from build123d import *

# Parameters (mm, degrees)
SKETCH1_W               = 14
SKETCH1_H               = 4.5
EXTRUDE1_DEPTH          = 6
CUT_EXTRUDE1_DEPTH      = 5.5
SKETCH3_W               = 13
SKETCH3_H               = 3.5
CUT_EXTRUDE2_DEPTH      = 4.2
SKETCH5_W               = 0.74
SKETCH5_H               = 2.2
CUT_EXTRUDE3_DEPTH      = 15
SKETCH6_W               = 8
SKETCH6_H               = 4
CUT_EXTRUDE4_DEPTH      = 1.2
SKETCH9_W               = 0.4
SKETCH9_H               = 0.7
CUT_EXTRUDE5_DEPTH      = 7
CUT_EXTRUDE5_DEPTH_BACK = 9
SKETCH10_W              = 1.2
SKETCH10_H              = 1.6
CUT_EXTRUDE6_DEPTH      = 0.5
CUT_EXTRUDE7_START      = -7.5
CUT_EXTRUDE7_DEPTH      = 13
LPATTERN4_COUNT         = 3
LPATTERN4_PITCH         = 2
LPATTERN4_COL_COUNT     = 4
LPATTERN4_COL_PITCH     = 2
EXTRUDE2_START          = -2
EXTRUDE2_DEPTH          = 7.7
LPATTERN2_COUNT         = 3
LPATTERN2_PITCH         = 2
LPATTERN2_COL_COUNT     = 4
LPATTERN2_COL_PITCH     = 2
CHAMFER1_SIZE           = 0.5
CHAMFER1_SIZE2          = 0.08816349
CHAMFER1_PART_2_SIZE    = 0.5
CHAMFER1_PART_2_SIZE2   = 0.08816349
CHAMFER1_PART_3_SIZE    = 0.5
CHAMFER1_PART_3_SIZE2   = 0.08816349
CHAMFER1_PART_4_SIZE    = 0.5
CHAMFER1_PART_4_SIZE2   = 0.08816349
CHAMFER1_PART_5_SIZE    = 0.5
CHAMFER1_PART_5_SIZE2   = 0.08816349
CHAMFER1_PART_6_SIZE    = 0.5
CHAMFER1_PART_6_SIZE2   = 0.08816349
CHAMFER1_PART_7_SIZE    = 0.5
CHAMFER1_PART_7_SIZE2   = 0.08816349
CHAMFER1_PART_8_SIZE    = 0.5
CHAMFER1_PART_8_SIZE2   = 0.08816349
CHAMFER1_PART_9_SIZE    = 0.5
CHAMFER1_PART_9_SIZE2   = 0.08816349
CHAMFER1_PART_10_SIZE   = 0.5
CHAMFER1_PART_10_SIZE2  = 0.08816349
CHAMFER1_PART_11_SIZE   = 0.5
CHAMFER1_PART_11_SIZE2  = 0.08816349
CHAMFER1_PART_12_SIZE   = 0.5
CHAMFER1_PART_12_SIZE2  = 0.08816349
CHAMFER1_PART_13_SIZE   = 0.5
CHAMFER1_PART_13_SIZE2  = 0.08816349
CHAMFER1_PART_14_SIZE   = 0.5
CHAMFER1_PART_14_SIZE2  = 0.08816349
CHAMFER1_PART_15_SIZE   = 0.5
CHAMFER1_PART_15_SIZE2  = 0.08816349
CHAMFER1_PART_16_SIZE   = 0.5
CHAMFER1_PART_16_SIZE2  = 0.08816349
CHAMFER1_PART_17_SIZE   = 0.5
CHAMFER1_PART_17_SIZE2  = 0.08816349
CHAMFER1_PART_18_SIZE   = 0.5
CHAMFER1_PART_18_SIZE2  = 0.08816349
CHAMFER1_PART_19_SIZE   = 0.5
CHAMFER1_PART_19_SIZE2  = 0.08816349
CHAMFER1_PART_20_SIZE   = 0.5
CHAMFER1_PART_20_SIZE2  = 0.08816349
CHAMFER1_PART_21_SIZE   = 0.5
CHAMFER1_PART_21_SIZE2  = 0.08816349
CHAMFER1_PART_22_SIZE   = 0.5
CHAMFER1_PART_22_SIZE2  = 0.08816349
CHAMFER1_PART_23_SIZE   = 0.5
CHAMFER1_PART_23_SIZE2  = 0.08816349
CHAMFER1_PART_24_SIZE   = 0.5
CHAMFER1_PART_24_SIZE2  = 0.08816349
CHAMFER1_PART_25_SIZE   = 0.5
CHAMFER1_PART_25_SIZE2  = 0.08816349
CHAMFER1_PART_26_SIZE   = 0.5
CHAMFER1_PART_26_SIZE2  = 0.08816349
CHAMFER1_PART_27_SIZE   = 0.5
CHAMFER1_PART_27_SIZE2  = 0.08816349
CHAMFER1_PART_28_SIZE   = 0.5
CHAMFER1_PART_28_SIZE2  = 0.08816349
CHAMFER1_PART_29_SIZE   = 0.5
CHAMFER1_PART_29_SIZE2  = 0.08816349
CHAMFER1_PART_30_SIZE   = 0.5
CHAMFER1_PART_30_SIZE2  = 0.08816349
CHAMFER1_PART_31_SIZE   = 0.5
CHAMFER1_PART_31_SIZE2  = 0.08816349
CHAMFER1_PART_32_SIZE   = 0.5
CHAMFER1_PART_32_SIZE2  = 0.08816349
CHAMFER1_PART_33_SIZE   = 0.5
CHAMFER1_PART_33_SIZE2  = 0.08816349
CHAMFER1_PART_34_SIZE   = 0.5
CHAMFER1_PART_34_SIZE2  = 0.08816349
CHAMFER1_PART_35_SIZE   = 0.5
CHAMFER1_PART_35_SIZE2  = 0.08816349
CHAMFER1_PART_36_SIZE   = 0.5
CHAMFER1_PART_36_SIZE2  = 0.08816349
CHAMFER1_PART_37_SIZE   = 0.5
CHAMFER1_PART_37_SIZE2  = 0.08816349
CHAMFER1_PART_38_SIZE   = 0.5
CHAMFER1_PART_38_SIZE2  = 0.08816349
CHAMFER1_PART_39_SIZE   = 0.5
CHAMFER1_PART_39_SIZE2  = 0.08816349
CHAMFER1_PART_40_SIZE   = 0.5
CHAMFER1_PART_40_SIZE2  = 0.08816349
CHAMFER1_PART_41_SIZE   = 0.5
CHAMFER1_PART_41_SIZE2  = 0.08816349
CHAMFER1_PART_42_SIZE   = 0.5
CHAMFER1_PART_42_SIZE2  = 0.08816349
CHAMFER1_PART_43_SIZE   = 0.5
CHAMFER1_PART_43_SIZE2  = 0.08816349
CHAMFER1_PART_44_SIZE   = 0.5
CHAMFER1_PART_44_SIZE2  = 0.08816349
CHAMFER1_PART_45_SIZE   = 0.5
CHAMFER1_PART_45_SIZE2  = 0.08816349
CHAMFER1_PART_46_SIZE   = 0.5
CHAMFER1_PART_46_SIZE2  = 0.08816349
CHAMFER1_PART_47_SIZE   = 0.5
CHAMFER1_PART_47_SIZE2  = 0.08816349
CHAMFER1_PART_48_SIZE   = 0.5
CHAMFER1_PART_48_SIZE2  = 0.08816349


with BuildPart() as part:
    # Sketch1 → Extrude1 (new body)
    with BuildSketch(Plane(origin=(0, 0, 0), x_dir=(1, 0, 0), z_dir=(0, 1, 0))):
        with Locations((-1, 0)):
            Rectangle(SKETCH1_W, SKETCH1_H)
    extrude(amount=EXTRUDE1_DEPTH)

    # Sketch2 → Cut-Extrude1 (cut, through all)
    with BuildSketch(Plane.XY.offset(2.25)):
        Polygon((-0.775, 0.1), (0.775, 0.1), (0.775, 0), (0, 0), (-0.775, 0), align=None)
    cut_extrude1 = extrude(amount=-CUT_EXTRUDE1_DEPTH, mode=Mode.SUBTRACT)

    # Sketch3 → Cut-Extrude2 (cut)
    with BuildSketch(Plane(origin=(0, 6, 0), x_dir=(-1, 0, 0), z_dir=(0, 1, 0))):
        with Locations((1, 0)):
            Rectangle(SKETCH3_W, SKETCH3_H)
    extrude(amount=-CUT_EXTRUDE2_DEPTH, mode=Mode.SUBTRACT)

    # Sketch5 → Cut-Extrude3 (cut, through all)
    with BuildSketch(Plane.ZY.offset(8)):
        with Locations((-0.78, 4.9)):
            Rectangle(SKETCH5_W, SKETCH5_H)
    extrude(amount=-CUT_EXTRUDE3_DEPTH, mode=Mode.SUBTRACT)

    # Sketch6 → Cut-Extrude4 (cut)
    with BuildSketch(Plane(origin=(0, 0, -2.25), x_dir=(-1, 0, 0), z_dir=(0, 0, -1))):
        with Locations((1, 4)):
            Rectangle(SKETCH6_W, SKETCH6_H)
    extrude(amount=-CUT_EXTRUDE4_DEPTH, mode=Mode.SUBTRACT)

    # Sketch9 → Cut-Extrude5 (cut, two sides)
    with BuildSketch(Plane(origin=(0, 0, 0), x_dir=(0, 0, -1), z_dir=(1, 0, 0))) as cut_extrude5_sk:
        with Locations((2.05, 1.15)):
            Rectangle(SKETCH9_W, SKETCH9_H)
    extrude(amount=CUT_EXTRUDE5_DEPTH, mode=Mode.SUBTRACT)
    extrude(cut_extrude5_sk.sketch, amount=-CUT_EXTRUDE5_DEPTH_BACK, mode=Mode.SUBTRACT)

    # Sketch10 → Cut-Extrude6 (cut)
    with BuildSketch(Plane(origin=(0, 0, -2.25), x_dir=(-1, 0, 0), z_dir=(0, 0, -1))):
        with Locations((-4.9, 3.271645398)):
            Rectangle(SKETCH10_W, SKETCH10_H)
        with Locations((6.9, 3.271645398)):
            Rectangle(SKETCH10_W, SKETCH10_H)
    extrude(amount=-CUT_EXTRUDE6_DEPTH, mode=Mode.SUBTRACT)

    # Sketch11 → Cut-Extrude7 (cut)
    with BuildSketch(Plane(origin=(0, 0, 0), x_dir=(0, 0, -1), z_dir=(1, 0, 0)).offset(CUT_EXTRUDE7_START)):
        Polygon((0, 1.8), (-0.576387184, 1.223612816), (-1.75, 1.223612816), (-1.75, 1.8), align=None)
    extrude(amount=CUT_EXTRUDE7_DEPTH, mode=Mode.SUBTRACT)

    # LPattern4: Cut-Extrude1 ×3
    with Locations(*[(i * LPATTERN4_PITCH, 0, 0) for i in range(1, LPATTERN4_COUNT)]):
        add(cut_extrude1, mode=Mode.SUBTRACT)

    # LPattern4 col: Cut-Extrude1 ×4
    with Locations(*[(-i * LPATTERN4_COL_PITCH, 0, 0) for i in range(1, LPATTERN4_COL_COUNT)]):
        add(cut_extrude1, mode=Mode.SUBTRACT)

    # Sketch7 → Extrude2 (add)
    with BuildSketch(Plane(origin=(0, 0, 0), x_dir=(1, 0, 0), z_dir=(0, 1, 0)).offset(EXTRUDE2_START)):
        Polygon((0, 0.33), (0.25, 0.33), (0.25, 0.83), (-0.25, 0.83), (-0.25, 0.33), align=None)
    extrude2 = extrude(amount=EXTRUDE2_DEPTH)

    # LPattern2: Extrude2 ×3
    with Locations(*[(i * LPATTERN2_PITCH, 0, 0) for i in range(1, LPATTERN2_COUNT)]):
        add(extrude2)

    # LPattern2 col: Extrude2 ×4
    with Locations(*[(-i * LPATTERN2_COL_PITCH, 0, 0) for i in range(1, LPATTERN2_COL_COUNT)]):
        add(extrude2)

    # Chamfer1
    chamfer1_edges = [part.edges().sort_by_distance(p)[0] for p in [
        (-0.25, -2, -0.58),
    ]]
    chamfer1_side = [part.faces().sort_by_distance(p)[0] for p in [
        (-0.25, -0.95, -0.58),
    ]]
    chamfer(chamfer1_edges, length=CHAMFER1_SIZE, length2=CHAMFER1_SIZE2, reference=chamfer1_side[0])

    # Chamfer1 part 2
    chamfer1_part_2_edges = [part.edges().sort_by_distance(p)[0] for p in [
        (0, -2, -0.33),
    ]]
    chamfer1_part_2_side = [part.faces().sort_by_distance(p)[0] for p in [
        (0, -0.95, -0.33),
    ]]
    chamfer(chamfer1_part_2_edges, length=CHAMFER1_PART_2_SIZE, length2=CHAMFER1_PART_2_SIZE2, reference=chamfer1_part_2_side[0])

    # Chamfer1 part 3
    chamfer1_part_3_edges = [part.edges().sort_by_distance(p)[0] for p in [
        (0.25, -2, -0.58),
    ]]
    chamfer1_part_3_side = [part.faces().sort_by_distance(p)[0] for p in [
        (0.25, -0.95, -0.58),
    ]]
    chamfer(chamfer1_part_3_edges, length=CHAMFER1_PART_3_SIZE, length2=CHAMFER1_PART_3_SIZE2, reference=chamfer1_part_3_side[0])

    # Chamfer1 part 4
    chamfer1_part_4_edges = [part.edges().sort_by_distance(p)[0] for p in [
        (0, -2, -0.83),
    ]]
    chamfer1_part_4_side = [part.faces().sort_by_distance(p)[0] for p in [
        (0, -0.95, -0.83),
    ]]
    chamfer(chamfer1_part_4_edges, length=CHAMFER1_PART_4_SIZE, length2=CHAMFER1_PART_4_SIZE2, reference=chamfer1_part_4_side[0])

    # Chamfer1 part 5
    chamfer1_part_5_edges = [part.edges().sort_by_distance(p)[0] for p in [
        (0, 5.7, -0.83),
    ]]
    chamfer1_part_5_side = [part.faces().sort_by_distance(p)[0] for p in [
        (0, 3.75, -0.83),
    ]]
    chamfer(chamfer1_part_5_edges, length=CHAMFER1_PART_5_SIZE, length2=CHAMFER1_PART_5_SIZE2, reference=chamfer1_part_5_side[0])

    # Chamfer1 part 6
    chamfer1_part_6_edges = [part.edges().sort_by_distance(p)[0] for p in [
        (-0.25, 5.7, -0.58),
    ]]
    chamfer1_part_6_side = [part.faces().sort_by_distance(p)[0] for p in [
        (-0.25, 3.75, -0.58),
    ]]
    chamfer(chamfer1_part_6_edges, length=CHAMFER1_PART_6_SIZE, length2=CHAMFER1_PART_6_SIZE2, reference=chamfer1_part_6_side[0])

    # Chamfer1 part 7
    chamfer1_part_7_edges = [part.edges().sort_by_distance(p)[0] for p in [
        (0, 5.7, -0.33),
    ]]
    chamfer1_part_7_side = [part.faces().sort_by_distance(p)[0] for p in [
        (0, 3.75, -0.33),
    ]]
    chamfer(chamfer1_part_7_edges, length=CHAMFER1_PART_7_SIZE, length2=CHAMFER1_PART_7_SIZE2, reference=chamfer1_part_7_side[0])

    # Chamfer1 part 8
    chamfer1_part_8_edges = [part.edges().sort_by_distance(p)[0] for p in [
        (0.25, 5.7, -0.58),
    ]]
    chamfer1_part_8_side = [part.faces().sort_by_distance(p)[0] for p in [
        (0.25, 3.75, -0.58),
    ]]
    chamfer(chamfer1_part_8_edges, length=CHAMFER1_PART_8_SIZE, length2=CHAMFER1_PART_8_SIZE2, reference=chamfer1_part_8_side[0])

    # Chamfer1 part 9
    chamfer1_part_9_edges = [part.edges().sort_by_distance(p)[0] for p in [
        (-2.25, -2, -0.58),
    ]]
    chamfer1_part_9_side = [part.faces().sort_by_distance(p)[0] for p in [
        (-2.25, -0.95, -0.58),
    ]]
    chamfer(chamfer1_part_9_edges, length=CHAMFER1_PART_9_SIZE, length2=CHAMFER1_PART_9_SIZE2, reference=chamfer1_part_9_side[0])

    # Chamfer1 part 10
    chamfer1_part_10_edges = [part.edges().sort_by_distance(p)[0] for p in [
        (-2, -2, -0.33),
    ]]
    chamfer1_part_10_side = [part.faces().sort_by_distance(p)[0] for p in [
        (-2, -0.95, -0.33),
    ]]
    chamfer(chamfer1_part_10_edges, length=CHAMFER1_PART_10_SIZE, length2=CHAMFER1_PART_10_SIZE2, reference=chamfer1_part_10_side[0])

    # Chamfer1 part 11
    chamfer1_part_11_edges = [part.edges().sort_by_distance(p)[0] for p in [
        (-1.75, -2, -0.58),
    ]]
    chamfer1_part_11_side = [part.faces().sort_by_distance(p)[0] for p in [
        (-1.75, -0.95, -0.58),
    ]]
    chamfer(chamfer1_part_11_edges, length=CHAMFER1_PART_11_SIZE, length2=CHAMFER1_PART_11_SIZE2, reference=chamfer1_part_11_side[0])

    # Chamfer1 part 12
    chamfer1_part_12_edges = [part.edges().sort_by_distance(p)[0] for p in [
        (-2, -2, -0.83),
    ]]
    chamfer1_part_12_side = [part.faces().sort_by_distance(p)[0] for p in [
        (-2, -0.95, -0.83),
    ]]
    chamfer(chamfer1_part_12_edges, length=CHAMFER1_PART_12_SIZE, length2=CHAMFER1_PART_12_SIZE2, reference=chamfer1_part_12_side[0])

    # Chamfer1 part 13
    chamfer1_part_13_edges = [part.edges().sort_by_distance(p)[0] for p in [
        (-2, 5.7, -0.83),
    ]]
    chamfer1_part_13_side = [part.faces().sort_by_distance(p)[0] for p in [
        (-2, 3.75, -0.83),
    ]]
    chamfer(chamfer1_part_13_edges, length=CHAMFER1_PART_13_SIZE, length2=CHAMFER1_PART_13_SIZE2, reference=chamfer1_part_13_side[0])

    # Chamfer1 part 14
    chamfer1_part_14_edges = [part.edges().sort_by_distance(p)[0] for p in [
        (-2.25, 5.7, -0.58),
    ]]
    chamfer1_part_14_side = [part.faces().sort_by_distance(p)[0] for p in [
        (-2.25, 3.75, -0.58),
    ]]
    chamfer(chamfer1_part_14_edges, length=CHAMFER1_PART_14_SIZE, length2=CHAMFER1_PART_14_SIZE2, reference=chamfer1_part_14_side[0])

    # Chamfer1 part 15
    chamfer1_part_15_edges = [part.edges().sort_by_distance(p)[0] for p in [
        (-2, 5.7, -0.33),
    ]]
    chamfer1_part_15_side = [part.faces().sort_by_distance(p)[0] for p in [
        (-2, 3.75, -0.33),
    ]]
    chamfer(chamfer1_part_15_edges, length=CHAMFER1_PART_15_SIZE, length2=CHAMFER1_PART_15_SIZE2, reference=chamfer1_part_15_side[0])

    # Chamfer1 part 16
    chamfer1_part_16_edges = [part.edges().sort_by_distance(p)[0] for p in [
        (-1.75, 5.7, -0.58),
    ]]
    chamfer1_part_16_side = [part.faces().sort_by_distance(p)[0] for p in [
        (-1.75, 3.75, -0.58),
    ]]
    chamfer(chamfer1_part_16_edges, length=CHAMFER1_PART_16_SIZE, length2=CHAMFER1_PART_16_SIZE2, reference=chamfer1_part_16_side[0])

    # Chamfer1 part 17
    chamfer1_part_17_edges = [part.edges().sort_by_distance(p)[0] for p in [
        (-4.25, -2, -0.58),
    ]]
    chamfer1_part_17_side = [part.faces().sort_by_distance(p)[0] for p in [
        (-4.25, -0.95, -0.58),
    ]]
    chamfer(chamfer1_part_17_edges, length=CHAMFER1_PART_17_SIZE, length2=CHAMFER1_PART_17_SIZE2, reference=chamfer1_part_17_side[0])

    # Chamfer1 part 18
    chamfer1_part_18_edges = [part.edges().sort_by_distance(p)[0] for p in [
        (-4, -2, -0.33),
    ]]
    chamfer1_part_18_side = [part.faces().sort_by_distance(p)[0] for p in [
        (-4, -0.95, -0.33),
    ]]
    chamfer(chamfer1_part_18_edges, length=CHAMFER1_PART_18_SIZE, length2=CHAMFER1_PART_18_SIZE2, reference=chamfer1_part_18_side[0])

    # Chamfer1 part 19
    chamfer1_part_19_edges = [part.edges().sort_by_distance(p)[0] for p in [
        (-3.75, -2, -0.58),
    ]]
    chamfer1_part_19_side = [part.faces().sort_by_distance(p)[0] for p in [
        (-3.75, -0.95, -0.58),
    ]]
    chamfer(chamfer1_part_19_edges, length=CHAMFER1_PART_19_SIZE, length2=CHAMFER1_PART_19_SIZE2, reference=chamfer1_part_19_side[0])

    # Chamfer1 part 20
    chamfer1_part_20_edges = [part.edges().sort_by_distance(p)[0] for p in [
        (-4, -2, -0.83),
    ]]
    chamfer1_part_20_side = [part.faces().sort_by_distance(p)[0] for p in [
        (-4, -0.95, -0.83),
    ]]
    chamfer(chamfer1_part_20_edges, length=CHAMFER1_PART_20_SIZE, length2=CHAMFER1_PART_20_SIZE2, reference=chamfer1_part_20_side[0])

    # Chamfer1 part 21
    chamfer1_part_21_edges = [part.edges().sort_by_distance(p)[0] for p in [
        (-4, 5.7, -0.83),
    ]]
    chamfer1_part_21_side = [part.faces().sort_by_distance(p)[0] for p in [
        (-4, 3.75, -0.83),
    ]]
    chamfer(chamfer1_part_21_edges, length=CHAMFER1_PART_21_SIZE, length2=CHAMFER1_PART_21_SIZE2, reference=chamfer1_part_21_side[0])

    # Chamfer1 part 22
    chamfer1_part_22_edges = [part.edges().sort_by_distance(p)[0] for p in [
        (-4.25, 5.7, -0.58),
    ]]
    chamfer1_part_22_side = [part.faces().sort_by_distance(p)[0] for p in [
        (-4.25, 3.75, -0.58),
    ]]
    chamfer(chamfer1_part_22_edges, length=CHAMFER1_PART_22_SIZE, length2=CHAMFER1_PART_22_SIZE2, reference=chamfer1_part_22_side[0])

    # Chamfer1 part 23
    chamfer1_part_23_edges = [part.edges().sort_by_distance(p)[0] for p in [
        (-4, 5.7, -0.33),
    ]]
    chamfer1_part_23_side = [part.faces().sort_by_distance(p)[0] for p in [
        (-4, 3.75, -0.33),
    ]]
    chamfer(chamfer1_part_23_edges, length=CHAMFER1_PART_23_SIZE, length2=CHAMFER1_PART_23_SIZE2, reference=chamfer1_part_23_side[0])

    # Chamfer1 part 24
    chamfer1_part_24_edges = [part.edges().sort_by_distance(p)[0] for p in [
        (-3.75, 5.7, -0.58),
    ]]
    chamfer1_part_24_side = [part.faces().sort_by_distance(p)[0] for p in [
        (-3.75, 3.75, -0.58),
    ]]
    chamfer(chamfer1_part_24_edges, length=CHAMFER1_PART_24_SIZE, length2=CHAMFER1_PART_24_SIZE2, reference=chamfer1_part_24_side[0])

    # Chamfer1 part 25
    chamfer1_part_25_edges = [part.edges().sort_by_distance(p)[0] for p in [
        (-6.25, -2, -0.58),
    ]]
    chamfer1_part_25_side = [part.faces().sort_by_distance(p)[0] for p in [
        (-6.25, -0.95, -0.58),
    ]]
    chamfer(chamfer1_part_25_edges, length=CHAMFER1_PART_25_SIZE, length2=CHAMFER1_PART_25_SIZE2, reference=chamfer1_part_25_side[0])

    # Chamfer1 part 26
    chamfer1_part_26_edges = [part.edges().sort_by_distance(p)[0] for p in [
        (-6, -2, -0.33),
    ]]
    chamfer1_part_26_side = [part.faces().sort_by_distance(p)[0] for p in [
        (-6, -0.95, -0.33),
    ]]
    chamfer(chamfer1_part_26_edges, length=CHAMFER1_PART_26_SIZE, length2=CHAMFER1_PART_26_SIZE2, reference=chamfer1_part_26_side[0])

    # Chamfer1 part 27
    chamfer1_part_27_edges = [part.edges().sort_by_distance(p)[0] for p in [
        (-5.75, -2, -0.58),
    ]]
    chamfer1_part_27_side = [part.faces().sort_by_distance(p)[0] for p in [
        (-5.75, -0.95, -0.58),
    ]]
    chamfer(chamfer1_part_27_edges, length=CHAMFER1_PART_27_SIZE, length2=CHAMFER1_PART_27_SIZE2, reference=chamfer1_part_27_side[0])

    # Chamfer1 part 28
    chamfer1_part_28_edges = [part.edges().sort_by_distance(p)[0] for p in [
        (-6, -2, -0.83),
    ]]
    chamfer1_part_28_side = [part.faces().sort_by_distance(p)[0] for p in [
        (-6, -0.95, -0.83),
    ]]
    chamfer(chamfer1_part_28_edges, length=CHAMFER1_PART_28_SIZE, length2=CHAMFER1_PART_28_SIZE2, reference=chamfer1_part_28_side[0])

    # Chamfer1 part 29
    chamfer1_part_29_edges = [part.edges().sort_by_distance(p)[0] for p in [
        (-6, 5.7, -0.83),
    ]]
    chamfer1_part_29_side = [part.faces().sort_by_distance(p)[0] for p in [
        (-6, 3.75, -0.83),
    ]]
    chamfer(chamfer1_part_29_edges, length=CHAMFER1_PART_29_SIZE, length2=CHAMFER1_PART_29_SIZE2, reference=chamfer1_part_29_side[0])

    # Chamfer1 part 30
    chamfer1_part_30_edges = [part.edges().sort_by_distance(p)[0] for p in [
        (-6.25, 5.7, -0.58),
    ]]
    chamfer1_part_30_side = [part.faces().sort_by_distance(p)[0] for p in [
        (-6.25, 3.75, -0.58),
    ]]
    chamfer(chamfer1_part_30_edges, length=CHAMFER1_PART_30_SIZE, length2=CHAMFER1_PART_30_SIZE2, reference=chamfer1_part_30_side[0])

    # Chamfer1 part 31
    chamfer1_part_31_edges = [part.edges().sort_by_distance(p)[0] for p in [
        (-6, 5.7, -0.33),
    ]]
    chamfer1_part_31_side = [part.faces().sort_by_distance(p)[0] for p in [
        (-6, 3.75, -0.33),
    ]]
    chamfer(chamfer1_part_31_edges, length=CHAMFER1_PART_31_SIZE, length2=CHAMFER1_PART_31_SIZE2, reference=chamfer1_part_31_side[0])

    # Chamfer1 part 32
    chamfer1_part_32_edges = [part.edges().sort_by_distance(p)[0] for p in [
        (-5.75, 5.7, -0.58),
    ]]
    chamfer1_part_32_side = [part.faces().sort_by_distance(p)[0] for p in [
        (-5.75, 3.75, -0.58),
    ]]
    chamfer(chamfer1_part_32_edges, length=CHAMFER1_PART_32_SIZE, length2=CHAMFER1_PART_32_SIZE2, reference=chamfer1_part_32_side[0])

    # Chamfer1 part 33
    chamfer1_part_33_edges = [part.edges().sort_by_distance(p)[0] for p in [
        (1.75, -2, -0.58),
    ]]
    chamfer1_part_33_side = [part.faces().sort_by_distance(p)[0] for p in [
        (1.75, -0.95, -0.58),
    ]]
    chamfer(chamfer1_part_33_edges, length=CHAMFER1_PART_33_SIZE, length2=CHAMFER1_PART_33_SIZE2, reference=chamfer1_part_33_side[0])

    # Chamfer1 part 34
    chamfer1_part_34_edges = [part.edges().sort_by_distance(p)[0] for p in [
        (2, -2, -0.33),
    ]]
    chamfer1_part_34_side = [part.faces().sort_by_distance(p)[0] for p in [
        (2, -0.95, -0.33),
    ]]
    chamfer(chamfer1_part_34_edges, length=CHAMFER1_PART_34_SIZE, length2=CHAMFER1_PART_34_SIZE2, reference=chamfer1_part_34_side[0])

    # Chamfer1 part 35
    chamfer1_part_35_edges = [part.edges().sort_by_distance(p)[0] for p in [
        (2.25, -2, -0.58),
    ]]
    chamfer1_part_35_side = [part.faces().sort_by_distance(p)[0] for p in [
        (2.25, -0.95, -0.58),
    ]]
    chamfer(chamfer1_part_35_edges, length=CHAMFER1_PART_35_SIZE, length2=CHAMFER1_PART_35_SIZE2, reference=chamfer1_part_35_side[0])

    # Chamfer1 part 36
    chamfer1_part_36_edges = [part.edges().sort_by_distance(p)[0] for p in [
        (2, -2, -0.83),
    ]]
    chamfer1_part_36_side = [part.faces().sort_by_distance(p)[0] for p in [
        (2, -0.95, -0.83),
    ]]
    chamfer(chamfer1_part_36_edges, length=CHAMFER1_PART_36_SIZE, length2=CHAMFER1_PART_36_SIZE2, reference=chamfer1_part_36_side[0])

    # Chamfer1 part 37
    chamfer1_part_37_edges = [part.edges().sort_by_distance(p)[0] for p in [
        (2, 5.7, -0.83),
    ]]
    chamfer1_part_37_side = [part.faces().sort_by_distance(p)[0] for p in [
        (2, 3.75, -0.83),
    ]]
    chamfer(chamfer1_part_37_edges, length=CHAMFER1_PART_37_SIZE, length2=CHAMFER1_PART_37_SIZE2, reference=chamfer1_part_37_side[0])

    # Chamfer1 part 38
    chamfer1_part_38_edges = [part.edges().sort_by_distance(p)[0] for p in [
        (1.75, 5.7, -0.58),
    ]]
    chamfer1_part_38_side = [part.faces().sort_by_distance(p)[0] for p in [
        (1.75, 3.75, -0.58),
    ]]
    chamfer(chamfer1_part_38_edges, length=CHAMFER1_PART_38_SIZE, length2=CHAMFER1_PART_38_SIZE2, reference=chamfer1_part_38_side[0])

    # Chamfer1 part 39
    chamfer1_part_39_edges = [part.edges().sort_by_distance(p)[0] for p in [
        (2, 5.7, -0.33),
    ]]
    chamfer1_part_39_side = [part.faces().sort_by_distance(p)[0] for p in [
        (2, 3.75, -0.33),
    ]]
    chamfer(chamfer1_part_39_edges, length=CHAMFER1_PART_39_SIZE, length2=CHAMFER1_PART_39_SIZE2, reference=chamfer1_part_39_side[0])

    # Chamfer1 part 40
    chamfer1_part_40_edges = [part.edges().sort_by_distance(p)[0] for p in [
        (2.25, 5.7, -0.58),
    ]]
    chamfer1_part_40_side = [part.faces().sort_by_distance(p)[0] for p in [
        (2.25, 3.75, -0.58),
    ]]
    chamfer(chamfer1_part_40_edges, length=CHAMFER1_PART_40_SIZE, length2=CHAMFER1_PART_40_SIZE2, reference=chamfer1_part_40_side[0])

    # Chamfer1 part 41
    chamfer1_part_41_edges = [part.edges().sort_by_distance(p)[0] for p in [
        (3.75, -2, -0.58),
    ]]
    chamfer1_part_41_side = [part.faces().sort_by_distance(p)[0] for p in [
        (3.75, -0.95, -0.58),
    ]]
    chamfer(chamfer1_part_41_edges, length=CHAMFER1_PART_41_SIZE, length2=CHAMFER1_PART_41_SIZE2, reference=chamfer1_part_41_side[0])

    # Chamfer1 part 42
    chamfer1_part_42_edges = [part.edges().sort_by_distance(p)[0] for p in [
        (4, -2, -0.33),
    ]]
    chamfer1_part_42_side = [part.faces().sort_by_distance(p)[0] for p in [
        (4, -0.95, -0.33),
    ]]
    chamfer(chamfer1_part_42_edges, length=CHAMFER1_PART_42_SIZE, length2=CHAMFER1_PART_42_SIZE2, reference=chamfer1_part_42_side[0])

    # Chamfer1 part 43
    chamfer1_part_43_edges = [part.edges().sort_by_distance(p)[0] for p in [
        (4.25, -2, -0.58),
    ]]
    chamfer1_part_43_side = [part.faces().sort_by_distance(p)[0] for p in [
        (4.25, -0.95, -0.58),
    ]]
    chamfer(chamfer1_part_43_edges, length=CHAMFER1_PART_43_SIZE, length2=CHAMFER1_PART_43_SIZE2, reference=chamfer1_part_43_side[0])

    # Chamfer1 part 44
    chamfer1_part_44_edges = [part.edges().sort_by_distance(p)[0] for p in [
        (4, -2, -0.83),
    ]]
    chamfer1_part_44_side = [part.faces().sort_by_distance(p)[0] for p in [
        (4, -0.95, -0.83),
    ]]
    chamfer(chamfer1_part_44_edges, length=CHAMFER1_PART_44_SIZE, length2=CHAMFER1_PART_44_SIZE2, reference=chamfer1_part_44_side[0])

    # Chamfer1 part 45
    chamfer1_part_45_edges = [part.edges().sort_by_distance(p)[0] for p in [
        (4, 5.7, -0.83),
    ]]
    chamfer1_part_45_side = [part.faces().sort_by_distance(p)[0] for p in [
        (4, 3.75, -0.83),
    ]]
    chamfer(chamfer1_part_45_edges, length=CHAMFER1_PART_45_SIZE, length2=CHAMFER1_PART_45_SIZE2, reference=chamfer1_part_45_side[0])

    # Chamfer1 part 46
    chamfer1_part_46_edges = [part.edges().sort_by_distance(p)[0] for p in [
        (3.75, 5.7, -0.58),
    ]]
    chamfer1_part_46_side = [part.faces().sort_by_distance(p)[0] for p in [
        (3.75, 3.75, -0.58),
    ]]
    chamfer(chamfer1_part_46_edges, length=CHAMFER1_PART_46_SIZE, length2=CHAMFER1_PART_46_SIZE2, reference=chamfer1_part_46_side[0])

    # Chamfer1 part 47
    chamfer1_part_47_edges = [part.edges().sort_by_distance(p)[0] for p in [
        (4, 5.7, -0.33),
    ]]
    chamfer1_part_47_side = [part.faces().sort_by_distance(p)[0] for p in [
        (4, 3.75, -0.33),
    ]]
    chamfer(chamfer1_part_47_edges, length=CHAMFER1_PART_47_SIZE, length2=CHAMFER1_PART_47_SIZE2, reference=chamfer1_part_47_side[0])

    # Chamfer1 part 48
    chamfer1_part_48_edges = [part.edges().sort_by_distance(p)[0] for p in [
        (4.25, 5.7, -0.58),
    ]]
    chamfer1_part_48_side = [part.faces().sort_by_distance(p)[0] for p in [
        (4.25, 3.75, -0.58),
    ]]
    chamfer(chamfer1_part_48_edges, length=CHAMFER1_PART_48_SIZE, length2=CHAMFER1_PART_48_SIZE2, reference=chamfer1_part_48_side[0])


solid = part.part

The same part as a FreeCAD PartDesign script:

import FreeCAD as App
import Part
import Sketcher
from FreeCAD import Vector
Q = App.Units.Quantity


def edges_at(feature, points):
    """Names of the edges that pass closest to the given points."""
    edges = feature.Shape.Edges
    near = lambda p: min(range(len(edges)), key=lambda i: edges[i].distToShape(Part.Vertex(*p))[0])
    return sorted({f"Edge{near(p) + 1}" for p in points})

doc = App.newDocument("Part")
body = doc.addObject("PartDesign::Body", "Body")

# Sketch on XZ plane
sketch1 = body.newObject("Sketcher::SketchObject", "Sketch")
sketch1.AttachmentSupport = (doc.getObject("XZ_Plane"), [""])
sketch1.MapMode = "FlatFace"
sketch1.addGeometry(Part.LineSegment(Vector(-8, -2.2, 0), Vector(-8, 2.2, 0)), False)
sketch1.addGeometry(Part.LineSegment(Vector(-8, 2.2, 0), Vector(6, 2.2, 0)), False)
sketch1.addGeometry(Part.LineSegment(Vector(6, 2.2, 0), Vector(6, -2.2, 0)), False)
sketch1.addGeometry(Part.LineSegment(Vector(6, -2.2, 0), Vector(-8, -2.2, 0)), False)
sketch1.addConstraint(Sketcher.Constraint("Coincident", 0, 2, 1, 1))
sketch1.addConstraint(Sketcher.Constraint("Coincident", 1, 2, 2, 1))
sketch1.addConstraint(Sketcher.Constraint("Coincident", 2, 2, 3, 1))
sketch1.addConstraint(Sketcher.Constraint("Coincident", 3, 2, 0, 1))
sketch1.addConstraint(Sketcher.Constraint("Vertical", 0))
sketch1.addConstraint(Sketcher.Constraint("Horizontal", 1))
sketch1.addConstraint(Sketcher.Constraint("Vertical", 2))
sketch1.addConstraint(Sketcher.Constraint("Horizontal", 3))
sketch1.addConstraint(Sketcher.Constraint("DistanceX", 1, 1, 1, 2, Q("14 mm")))
sketch1.addConstraint(Sketcher.Constraint("DistanceY", 0, 1, 0, 2, Q("4.5 mm")))
sketch1.addConstraint(Sketcher.Constraint("DistanceX", 0, 2, -1, 1, Q("8 mm")))
sketch1.addConstraint(Sketcher.Constraint("DistanceY", -1, 1, 0, 2, Q("2.25 mm")))
pad1 = body.newObject("PartDesign::Pad", "Pad")
pad1.Profile = sketch1
pad1.Length = 6
pad1.Reversed = True

# Sketch on XY plane
sketch2 = body.newObject("Sketcher::SketchObject", "Sketch001")
sketch2.AttachmentSupport = (doc.getObject("XY_Plane"), [""])
sketch2.MapMode = "FlatFace"
sketch2.AttachmentOffset = App.Placement(Vector(0, 0, 2.25), App.Rotation())
sketch2.addGeometry(Part.LineSegment(Vector(0.78, 0.1, 0), Vector(-0.78, 0.1, 0)), False)
sketch2.addGeometry(Part.LineSegment(Vector(-0.78, 0.1, 0), Vector(-0.78, 0, 0)), False)
sketch2.addGeometry(Part.LineSegment(Vector(-0.78, 0, 0), Vector(0.78, 0, 0)), False)
sketch2.addGeometry(Part.LineSegment(Vector(0.78, 0, 0), Vector(0.78, 0.1, 0)), False)
sketch2.addConstraint(Sketcher.Constraint("Coincident", 0, 2, 1, 1))
sketch2.addConstraint(Sketcher.Constraint("Coincident", 1, 2, 2, 1))
sketch2.addConstraint(Sketcher.Constraint("Coincident", 2, 2, 3, 1))
sketch2.addConstraint(Sketcher.Constraint("Coincident", 3, 2, 0, 1))
sketch2.addConstraint(Sketcher.Constraint("Horizontal", 0))
sketch2.addConstraint(Sketcher.Constraint("Vertical", 1))
sketch2.addConstraint(Sketcher.Constraint("Horizontal", 2))
sketch2.addConstraint(Sketcher.Constraint("Vertical", 3))
sketch2.addConstraint(Sketcher.Constraint("Symmetric", 1, 2, 2, 2, -1, 1))
sketch2.addConstraint(Sketcher.Constraint("DistanceY", 1, 2, 1, 1, Q("0.1 mm")))
sketch2.addConstraint(Sketcher.Constraint("DistanceX", 0, 2, 0, 1, Q("1.55 mm")))
pocket1 = body.newObject("PartDesign::Pocket", "Pocket")
pocket1.Profile = sketch2
pocket1.Type = "ThroughAll"

# Sketch on XZ plane
sketch3 = body.newObject("Sketcher::SketchObject", "Sketch002")
sketch3.AttachmentSupport = (doc.getObject("XZ_Plane"), [""])
sketch3.MapMode = "FlatFace"
sketch3.AttachmentOffset = App.Placement(Vector(0, 0, -6), App.Rotation())
sketch3.addGeometry(Part.LineSegment(Vector(5.5, 1.8, 0), Vector(5.5, -1.8, 0)), False)
sketch3.addGeometry(Part.LineSegment(Vector(5.5, -1.8, 0), Vector(-7.5, -1.8, 0)), False)
sketch3.addGeometry(Part.LineSegment(Vector(-7.5, -1.8, 0), Vector(-7.5, 1.8, 0)), False)
sketch3.addGeometry(Part.LineSegment(Vector(-7.5, 1.8, 0), Vector(5.5, 1.8, 0)), False)
sketch3.addConstraint(Sketcher.Constraint("Coincident", 0, 2, 1, 1))
sketch3.addConstraint(Sketcher.Constraint("Coincident", 1, 2, 2, 1))
sketch3.addConstraint(Sketcher.Constraint("Coincident", 2, 2, 3, 1))
sketch3.addConstraint(Sketcher.Constraint("Coincident", 3, 2, 0, 1))
sketch3.addConstraint(Sketcher.Constraint("Vertical", 0))
sketch3.addConstraint(Sketcher.Constraint("Horizontal", 1))
sketch3.addConstraint(Sketcher.Constraint("Vertical", 2))
sketch3.addConstraint(Sketcher.Constraint("Horizontal", 3))
sketch3.addConstraint(Sketcher.Constraint("DistanceX", 1, 2, 1, 1, Q("13 mm")))
sketch3.addConstraint(Sketcher.Constraint("DistanceY", 0, 2, 0, 1, Q("3.5 mm")))
sketch3.addConstraint(Sketcher.Constraint("DistanceX", -1, 1, 0, 2, Q("5.5 mm")))
sketch3.addConstraint(Sketcher.Constraint("DistanceY", 0, 2, -1, 1, Q("1.75 mm")))
pocket2 = body.newObject("PartDesign::Pocket", "Pocket001")
pocket2.Profile = sketch3
pocket2.Length = 4.2
pocket2.Reversed = True

# Sketch on YZ plane
sketch4 = body.newObject("Sketcher::SketchObject", "Sketch003")
sketch4.AttachmentSupport = (doc.getObject("YZ_Plane"), [""])
sketch4.MapMode = "FlatFace"
sketch4.AttachmentOffset = App.Placement(Vector(0, 0, -8), App.Rotation())
sketch4.addGeometry(Part.LineSegment(Vector(6, -1.1, 0), Vector(3.8, -1.1, 0)), False)
sketch4.addGeometry(Part.LineSegment(Vector(3.8, -1.1, 0), Vector(3.8, -0.4, 0)), False)
sketch4.addGeometry(Part.LineSegment(Vector(3.8, -0.4, 0), Vector(6, -0.4, 0)), False)
sketch4.addGeometry(Part.LineSegment(Vector(6, -0.4, 0), Vector(6, -1.1, 0)), False)
sketch4.addConstraint(Sketcher.Constraint("Coincident", 0, 2, 1, 1))
sketch4.addConstraint(Sketcher.Constraint("Coincident", 1, 2, 2, 1))
sketch4.addConstraint(Sketcher.Constraint("Coincident", 2, 2, 3, 1))
sketch4.addConstraint(Sketcher.Constraint("Coincident", 3, 2, 0, 1))
sketch4.addConstraint(Sketcher.Constraint("Horizontal", 0))
sketch4.addConstraint(Sketcher.Constraint("Vertical", 1))
sketch4.addConstraint(Sketcher.Constraint("Horizontal", 2))
sketch4.addConstraint(Sketcher.Constraint("Vertical", 3))
sketch4.addConstraint(Sketcher.Constraint("DistanceX", 0, 2, 0, 1, Q("2.2 mm")))
sketch4.addConstraint(Sketcher.Constraint("DistanceX", -1, 1, 2, 2, Q("6 mm")))
sketch4.addConstraint(Sketcher.Constraint("DistanceY", 1, 1, 1, 2, Q("0.74 mm")))
sketch4.addConstraint(Sketcher.Constraint("DistanceY", 0, 2, -1, 1, Q("1.15 mm")))
pocket3 = body.newObject("PartDesign::Pocket", "Pocket002")
pocket3.Profile = sketch4
pocket3.Type = "ThroughAll"
pocket3.Reversed = True

# Sketch on XY plane
sketch5 = body.newObject("Sketcher::SketchObject", "Sketch004")
sketch5.AttachmentSupport = (doc.getObject("XY_Plane"), [""])
sketch5.MapMode = "FlatFace"
sketch5.AttachmentOffset = App.Placement(Vector(0, 0, -2.25), App.Rotation())
sketch5.addGeometry(Part.LineSegment(Vector(3, 6, 0), Vector(3, 2, 0)), False)
sketch5.addGeometry(Part.LineSegment(Vector(3, 2, 0), Vector(-5, 2, 0)), False)
sketch5.addGeometry(Part.LineSegment(Vector(-5, 2, 0), Vector(-5, 6, 0)), False)
sketch5.addGeometry(Part.LineSegment(Vector(-5, 6, 0), Vector(3, 6, 0)), False)
sketch5.addConstraint(Sketcher.Constraint("Coincident", 0, 2, 1, 1))
sketch5.addConstraint(Sketcher.Constraint("Coincident", 1, 2, 2, 1))
sketch5.addConstraint(Sketcher.Constraint("Coincident", 2, 2, 3, 1))
sketch5.addConstraint(Sketcher.Constraint("Coincident", 3, 2, 0, 1))
sketch5.addConstraint(Sketcher.Constraint("Vertical", 0))
sketch5.addConstraint(Sketcher.Constraint("Horizontal", 1))
sketch5.addConstraint(Sketcher.Constraint("Vertical", 2))
sketch5.addConstraint(Sketcher.Constraint("Horizontal", 3))
sketch5.addConstraint(Sketcher.Constraint("DistanceX", 1, 2, 1, 1, Q("8 mm")))
sketch5.addConstraint(Sketcher.Constraint("DistanceY", 0, 2, 0, 1, Q("4 mm")))
sketch5.addConstraint(Sketcher.Constraint("DistanceX", -1, 1, 0, 2, Q("3 mm")))
sketch5.addConstraint(Sketcher.Constraint("DistanceY", -1, 1, 0, 2, Q("2 mm")))
pocket4 = body.newObject("PartDesign::Pocket", "Pocket003")
pocket4.Profile = sketch5
pocket4.Length = 1.2
pocket4.Reversed = True

# Sketch on YZ plane
sketch6 = body.newObject("Sketcher::SketchObject", "Sketch005")
sketch6.AttachmentSupport = (doc.getObject("YZ_Plane"), [""])
sketch6.MapMode = "FlatFace"
sketch6.addGeometry(Part.LineSegment(Vector(1.5, -1.85, 0), Vector(0.8, -1.85, 0)), False)
sketch6.addGeometry(Part.LineSegment(Vector(0.8, -1.85, 0), Vector(0.8, -2.25, 0)), False)
sketch6.addGeometry(Part.LineSegment(Vector(0.8, -2.25, 0), Vector(1.5, -2.25, 0)), False)
sketch6.addGeometry(Part.LineSegment(Vector(1.5, -2.25, 0), Vector(1.5, -1.85, 0)), False)
sketch6.addConstraint(Sketcher.Constraint("Coincident", 0, 2, 1, 1))
sketch6.addConstraint(Sketcher.Constraint("Coincident", 1, 2, 2, 1))
sketch6.addConstraint(Sketcher.Constraint("Coincident", 2, 2, 3, 1))
sketch6.addConstraint(Sketcher.Constraint("Coincident", 3, 2, 0, 1))
sketch6.addConstraint(Sketcher.Constraint("Horizontal", 0))
sketch6.addConstraint(Sketcher.Constraint("Vertical", 1))
sketch6.addConstraint(Sketcher.Constraint("Horizontal", 2))
sketch6.addConstraint(Sketcher.Constraint("Vertical", 3))
sketch6.addConstraint(Sketcher.Constraint("DistanceX", 0, 2, 0, 1, Q("0.7 mm")))
sketch6.addConstraint(Sketcher.Constraint("DistanceY", 1, 2, 1, 1, Q("0.4 mm")))
sketch6.addConstraint(Sketcher.Constraint("DistanceX", -1, 1, 0, 2, Q("0.8 mm")))
sketch6.addConstraint(Sketcher.Constraint("DistanceY", 0, 2, -1, 1, Q("1.85 mm")))
pocket5 = body.newObject("PartDesign::Pocket", "Pocket004")
pocket5.Profile = sketch6
pocket5.Type = "ThroughAll"
pocket5.Midplane = True

# Sketch on XY plane
sketch7 = body.newObject("Sketcher::SketchObject", "Sketch006")
sketch7.AttachmentSupport = (doc.getObject("XY_Plane"), [""])
sketch7.MapMode = "FlatFace"
sketch7.AttachmentOffset = App.Placement(Vector(0, 0, -2.25), App.Rotation())
sketch7.addGeometry(Part.LineSegment(Vector(5.5, 4.1, 0), Vector(5.5, 2.5, 0)), False)
sketch7.addGeometry(Part.LineSegment(Vector(5.5, 2.5, 0), Vector(4.3, 2.5, 0)), False)
sketch7.addGeometry(Part.LineSegment(Vector(4.3, 2.5, 0), Vector(4.3, 4.1, 0)), False)
sketch7.addGeometry(Part.LineSegment(Vector(4.3, 4.1, 0), Vector(5.5, 4.1, 0)), False)
sketch7.addGeometry(Part.LineSegment(Vector(-6.3, 4.1, 0), Vector(-6.3, 2.5, 0)), False)
sketch7.addGeometry(Part.LineSegment(Vector(-6.3, 2.5, 0), Vector(-7.5, 2.5, 0)), False)
sketch7.addGeometry(Part.LineSegment(Vector(-7.5, 2.5, 0), Vector(-7.5, 4.1, 0)), False)
sketch7.addGeometry(Part.LineSegment(Vector(-7.5, 4.1, 0), Vector(-6.3, 4.1, 0)), False)
sketch7.addConstraint(Sketcher.Constraint("Coincident", 0, 2, 1, 1))
sketch7.addConstraint(Sketcher.Constraint("Coincident", 1, 2, 2, 1))
sketch7.addConstraint(Sketcher.Constraint("Coincident", 2, 2, 3, 1))
sketch7.addConstraint(Sketcher.Constraint("Coincident", 3, 2, 0, 1))
sketch7.addConstraint(Sketcher.Constraint("Coincident", 4, 2, 5, 1))
sketch7.addConstraint(Sketcher.Constraint("Coincident", 5, 2, 6, 1))
sketch7.addConstraint(Sketcher.Constraint("Coincident", 6, 2, 7, 1))
sketch7.addConstraint(Sketcher.Constraint("Coincident", 7, 2, 4, 1))
sketch7.addConstraint(Sketcher.Constraint("Vertical", 0))
sketch7.addConstraint(Sketcher.Constraint("Horizontal", 1))
sketch7.addConstraint(Sketcher.Constraint("Vertical", 2))
sketch7.addConstraint(Sketcher.Constraint("Horizontal", 3))
sketch7.addConstraint(Sketcher.Constraint("Vertical", 4))
sketch7.addConstraint(Sketcher.Constraint("Horizontal", 5))
sketch7.addConstraint(Sketcher.Constraint("Vertical", 6))
sketch7.addConstraint(Sketcher.Constraint("Horizontal", 7))
sketch7.addConstraint(Sketcher.Constraint("Horizontal", 1, 2, 4, 2))
sketch7.addConstraint(Sketcher.Constraint("Horizontal", 3, 2, 6, 2))
sketch7.addConstraint(Sketcher.Constraint("Equal", 3, 5))
sketch7.addConstraint(Sketcher.Constraint("DistanceX", 1, 2, 1, 1, Q("1.2 mm")))
sketch7.addConstraint(Sketcher.Constraint("DistanceY", 0, 2, 0, 1, Q("1.6 mm")))
sketch7.addConstraint(Sketcher.Constraint("DistanceX", 5, 2, 0, 2, Q("13 mm")))
sketch7.addConstraint(Sketcher.Constraint("DistanceX", -1, 1, 0, 2, Q("5.5 mm")))
sketch7.addConstraint(Sketcher.Constraint("DistanceY", -1, 1, 0, 2, Q("2.471645 mm")))
pocket6 = body.newObject("PartDesign::Pocket", "Pocket005")
pocket6.Profile = sketch7
pocket6.Length = 0.5
pocket6.Reversed = True

# Sketch on YZ plane
sketch8 = body.newObject("Sketcher::SketchObject", "Sketch007")
sketch8.AttachmentSupport = (doc.getObject("YZ_Plane"), [""])
sketch8.MapMode = "FlatFace"
sketch8.AttachmentOffset = App.Placement(Vector(0, 0, -7.5), App.Rotation())
sketch8.addGeometry(Part.LineSegment(Vector(1.2, 0.6, 0), Vector(1.8, 0, 0)), False)
sketch8.addGeometry(Part.LineSegment(Vector(1.8, 0, 0), Vector(1.8, 1.8, 0)), False)
sketch8.addGeometry(Part.LineSegment(Vector(1.8, 1.8, 0), Vector(1.2, 1.8, 0)), False)
sketch8.addGeometry(Part.LineSegment(Vector(1.2, 1.8, 0), Vector(1.2, 0.6, 0)), False)
sketch8.addConstraint(Sketcher.Constraint("Coincident", 0, 2, 1, 1))
sketch8.addConstraint(Sketcher.Constraint("Coincident", 1, 2, 2, 1))
sketch8.addConstraint(Sketcher.Constraint("Coincident", 2, 2, 3, 1))
sketch8.addConstraint(Sketcher.Constraint("Coincident", 3, 2, 0, 1))
sketch8.addConstraint(Sketcher.Constraint("Vertical", 1))
sketch8.addConstraint(Sketcher.Constraint("Horizontal", 2))
sketch8.addConstraint(Sketcher.Constraint("Vertical", 3))
sketch8.addConstraint(Sketcher.Constraint("PointOnObject", 0, 2, -1))
sketch8.addConstraint(Sketcher.Constraint("Angle", 0, Q("-45 deg")))
sketch8.addConstraint(Sketcher.Constraint("DistanceY", 1, 1, 1, 2, Q("1.75 mm")))
sketch8.addConstraint(Sketcher.Constraint("DistanceX", -1, 1, 0, 2, Q("1.8 mm")))
sketch8.addConstraint(Sketcher.Constraint("DistanceX", 2, 2, 2, 1, Q("0.576387 mm")))
pocket7 = body.newObject("PartDesign::Pocket", "Pocket006")
pocket7.Profile = sketch8
pocket7.Length = 13
pocket7.Reversed = True
doc.recompute()

linearpattern = body.newObject("PartDesign::LinearPattern", "LinearPattern")
linearpattern.Originals = [pocket1]
linearpattern.Direction = (doc.getObject("X_Axis"), [""])
linearpattern.Mode = "offset"
linearpattern.Offset = 2
linearpattern.Occurrences = 3
body.Tip = linearpattern
doc.recompute()

linearpattern2 = body.newObject("PartDesign::LinearPattern", "LinearPattern001")
linearpattern2.Originals = [pocket1]
linearpattern2.Direction = (doc.getObject("X_Axis"), [""])
linearpattern2.Mode = "offset"
linearpattern2.Offset = 2
linearpattern2.Occurrences = 4
linearpattern2.Reversed = True
body.Tip = linearpattern2

# Sketch on XZ plane
sketch9 = body.newObject("Sketcher::SketchObject", "Sketch008")
sketch9.AttachmentSupport = (doc.getObject("XZ_Plane"), [""])
sketch9.MapMode = "FlatFace"
sketch9.AttachmentOffset = App.Placement(Vector(0, 0, 2), App.Rotation())
sketch9.addGeometry(Part.LineSegment(Vector(0.25, -0.33, 0), Vector(0.25, -0.83, 0)), False)
sketch9.addGeometry(Part.LineSegment(Vector(0.25, -0.83, 0), Vector(-0.25, -0.83, 0)), False)
sketch9.addGeometry(Part.LineSegment(Vector(-0.25, -0.83, 0), Vector(-0.25, -0.33, 0)), False)
sketch9.addGeometry(Part.LineSegment(Vector(-0.25, -0.33, 0), Vector(0.25, -0.33, 0)), False)
sketch9.addConstraint(Sketcher.Constraint("Coincident", 0, 2, 1, 1))
sketch9.addConstraint(Sketcher.Constraint("Coincident", 1, 2, 2, 1))
sketch9.addConstraint(Sketcher.Constraint("Coincident", 2, 2, 3, 1))
sketch9.addConstraint(Sketcher.Constraint("Coincident", 3, 2, 0, 1))
sketch9.addConstraint(Sketcher.Constraint("Vertical", 0))
sketch9.addConstraint(Sketcher.Constraint("Horizontal", 1))
sketch9.addConstraint(Sketcher.Constraint("Vertical", 2))
sketch9.addConstraint(Sketcher.Constraint("Horizontal", 3))
sketch9.addConstraint(Sketcher.Constraint("Equal", 3, 0))
sketch9.addConstraint(Sketcher.Constraint("DistanceX", 1, 2, 1, 1, Q("0.5 mm")))
sketch9.addConstraint(Sketcher.Constraint("DistanceX", -1, 1, 0, 2, Q("0.25 mm")))
sketch9.addConstraint(Sketcher.Constraint("DistanceY", 0, 2, -1, 1, Q("0.83 mm")))
pad2 = body.newObject("PartDesign::Pad", "Pad001")
pad2.Profile = sketch9
pad2.Length = 7.7
pad2.Reversed = True
doc.recompute()

linearpattern3 = body.newObject("PartDesign::LinearPattern", "LinearPattern002")
linearpattern3.Originals = [pad2]
linearpattern3.Direction = (doc.getObject("X_Axis"), [""])
linearpattern3.Mode = "offset"
linearpattern3.Offset = 2
linearpattern3.Occurrences = 3
body.Tip = linearpattern3
doc.recompute()

linearpattern4 = body.newObject("PartDesign::LinearPattern", "LinearPattern003")
linearpattern4.Originals = [pad2]
linearpattern4.Direction = (doc.getObject("X_Axis"), [""])
linearpattern4.Mode = "offset"
linearpattern4.Offset = 2
linearpattern4.Occurrences = 4
linearpattern4.Reversed = True
body.Tip = linearpattern4
doc.recompute()

chamfer = body.newObject("PartDesign::Chamfer", "Chamfer")
chamfer.Base = (linearpattern4, edges_at(linearpattern4, [(-0.25, -2, -0.58)]))
chamfer.ChamferType = "Two distances"
chamfer.Size = 0.5
chamfer.Size2 = 0.088163
doc.recompute()

chamfer2 = body.newObject("PartDesign::Chamfer", "Chamfer001")
chamfer2.Base = (chamfer, edges_at(chamfer, [(0.044, -2, -0.33)]))
chamfer2.ChamferType = "Two distances"
chamfer2.Size = 0.5
chamfer2.Size2 = 0.088163
chamfer2.FlipDirection = True
doc.recompute()

chamfer3 = body.newObject("PartDesign::Chamfer", "Chamfer002")
chamfer3.Base = (chamfer2, edges_at(chamfer2, [(0.25, -2, -0.624)]))
chamfer3.ChamferType = "Two distances"
chamfer3.Size = 0.5
chamfer3.Size2 = 0.088163
chamfer3.FlipDirection = True
doc.recompute()

chamfer4 = body.newObject("PartDesign::Chamfer", "Chamfer003")
chamfer4.Base = (chamfer3, edges_at(chamfer3, [(0, -2, -0.83)]))
chamfer4.ChamferType = "Two distances"
chamfer4.Size = 0.5
chamfer4.Size2 = 0.088163
chamfer4.FlipDirection = True
doc.recompute()

chamfer5 = body.newObject("PartDesign::Chamfer", "Chamfer004")
chamfer5.Base = (chamfer4, edges_at(chamfer4, [(0, 5.7, -0.83)]))
chamfer5.ChamferType = "Two distances"
chamfer5.Size = 0.5
chamfer5.Size2 = 0.088163
doc.recompute()

chamfer6 = body.newObject("PartDesign::Chamfer", "Chamfer005")
chamfer6.Base = (chamfer5, edges_at(chamfer5, [(-0.25, 5.7, -0.536)]))
chamfer6.ChamferType = "Two distances"
chamfer6.Size = 0.5
chamfer6.Size2 = 0.088163
doc.recompute()

chamfer7 = body.newObject("PartDesign::Chamfer", "Chamfer006")
chamfer7.Base = (chamfer6, edges_at(chamfer6, [(0.044, 5.7, -0.33)]))
chamfer7.ChamferType = "Two distances"
chamfer7.Size = 0.5
chamfer7.Size2 = 0.088163
doc.recompute()

chamfer8 = body.newObject("PartDesign::Chamfer", "Chamfer007")
chamfer8.Base = (chamfer7, edges_at(chamfer7, [(0.25, 5.7, -0.58)]))
chamfer8.ChamferType = "Two distances"
chamfer8.Size = 0.5
chamfer8.Size2 = 0.088163
doc.recompute()

chamfer9 = body.newObject("PartDesign::Chamfer", "Chamfer008")
chamfer9.Base = (chamfer8, edges_at(chamfer8, [(-2.25, -2, -0.58)]))
chamfer9.ChamferType = "Two distances"
chamfer9.Size = 0.5
chamfer9.Size2 = 0.088163
doc.recompute()

chamfer10 = body.newObject("PartDesign::Chamfer", "Chamfer009")
chamfer10.Base = (chamfer9, edges_at(chamfer9, [(-1.956, -2, -0.33)]))
chamfer10.ChamferType = "Two distances"
chamfer10.Size = 0.5
chamfer10.Size2 = 0.088163
chamfer10.FlipDirection = True
doc.recompute()

chamfer11 = body.newObject("PartDesign::Chamfer", "Chamfer010")
chamfer11.Base = (chamfer10, edges_at(chamfer10, [(-1.75, -2, -0.624)]))
chamfer11.ChamferType = "Two distances"
chamfer11.Size = 0.5
chamfer11.Size2 = 0.088163
chamfer11.FlipDirection = True
doc.recompute()

chamfer12 = body.newObject("PartDesign::Chamfer", "Chamfer011")
chamfer12.Base = (chamfer11, edges_at(chamfer11, [(-2, -2, -0.83)]))
chamfer12.ChamferType = "Two distances"
chamfer12.Size = 0.5
chamfer12.Size2 = 0.088163
chamfer12.FlipDirection = True
doc.recompute()

chamfer13 = body.newObject("PartDesign::Chamfer", "Chamfer012")
chamfer13.Base = (chamfer12, edges_at(chamfer12, [(-2, 5.7, -0.83)]))
chamfer13.ChamferType = "Two distances"
chamfer13.Size = 0.5
chamfer13.Size2 = 0.088163
doc.recompute()

chamfer14 = body.newObject("PartDesign::Chamfer", "Chamfer013")
chamfer14.Base = (chamfer13, edges_at(chamfer13, [(-2.25, 5.7, -0.536)]))
chamfer14.ChamferType = "Two distances"
chamfer14.Size = 0.5
chamfer14.Size2 = 0.088163
doc.recompute()

chamfer15 = body.newObject("PartDesign::Chamfer", "Chamfer014")
chamfer15.Base = (chamfer14, edges_at(chamfer14, [(-1.956, 5.7, -0.33)]))
chamfer15.ChamferType = "Two distances"
chamfer15.Size = 0.5
chamfer15.Size2 = 0.088163
doc.recompute()

chamfer16 = body.newObject("PartDesign::Chamfer", "Chamfer015")
chamfer16.Base = (chamfer15, edges_at(chamfer15, [(-1.75, 5.7, -0.58)]))
chamfer16.ChamferType = "Two distances"
chamfer16.Size = 0.5
chamfer16.Size2 = 0.088163
doc.recompute()

chamfer17 = body.newObject("PartDesign::Chamfer", "Chamfer016")
chamfer17.Base = (chamfer16, edges_at(chamfer16, [(-4.25, -2, -0.58)]))
chamfer17.ChamferType = "Two distances"
chamfer17.Size = 0.5
chamfer17.Size2 = 0.088163
doc.recompute()

chamfer18 = body.newObject("PartDesign::Chamfer", "Chamfer017")
chamfer18.Base = (chamfer17, edges_at(chamfer17, [(-3.956, -2, -0.33)]))
chamfer18.ChamferType = "Two distances"
chamfer18.Size = 0.5
chamfer18.Size2 = 0.088163
chamfer18.FlipDirection = True
doc.recompute()

chamfer19 = body.newObject("PartDesign::Chamfer", "Chamfer018")
chamfer19.Base = (chamfer18, edges_at(chamfer18, [(-3.75, -2, -0.624)]))
chamfer19.ChamferType = "Two distances"
chamfer19.Size = 0.5
chamfer19.Size2 = 0.088163
chamfer19.FlipDirection = True
doc.recompute()

chamfer20 = body.newObject("PartDesign::Chamfer", "Chamfer019")
chamfer20.Base = (chamfer19, edges_at(chamfer19, [(-4, -2, -0.83)]))
chamfer20.ChamferType = "Two distances"
chamfer20.Size = 0.5
chamfer20.Size2 = 0.088163
chamfer20.FlipDirection = True
doc.recompute()

chamfer21 = body.newObject("PartDesign::Chamfer", "Chamfer020")
chamfer21.Base = (chamfer20, edges_at(chamfer20, [(-4, 5.7, -0.83)]))
chamfer21.ChamferType = "Two distances"
chamfer21.Size = 0.5
chamfer21.Size2 = 0.088163
doc.recompute()

chamfer22 = body.newObject("PartDesign::Chamfer", "Chamfer021")
chamfer22.Base = (chamfer21, edges_at(chamfer21, [(-4.25, 5.7, -0.536)]))
chamfer22.ChamferType = "Two distances"
chamfer22.Size = 0.5
chamfer22.Size2 = 0.088163
doc.recompute()

chamfer23 = body.newObject("PartDesign::Chamfer", "Chamfer022")
chamfer23.Base = (chamfer22, edges_at(chamfer22, [(-3.956, 5.7, -0.33)]))
chamfer23.ChamferType = "Two distances"
chamfer23.Size = 0.5
chamfer23.Size2 = 0.088163
doc.recompute()

chamfer24 = body.newObject("PartDesign::Chamfer", "Chamfer023")
chamfer24.Base = (chamfer23, edges_at(chamfer23, [(-3.75, 5.7, -0.58)]))
chamfer24.ChamferType = "Two distances"
chamfer24.Size = 0.5
chamfer24.Size2 = 0.088163
doc.recompute()

chamfer25 = body.newObject("PartDesign::Chamfer", "Chamfer024")
chamfer25.Base = (chamfer24, edges_at(chamfer24, [(-6.25, -2, -0.58)]))
chamfer25.ChamferType = "Two distances"
chamfer25.Size = 0.5
chamfer25.Size2 = 0.088163
doc.recompute()

chamfer26 = body.newObject("PartDesign::Chamfer", "Chamfer025")
chamfer26.Base = (chamfer25, edges_at(chamfer25, [(-5.956, -2, -0.33)]))
chamfer26.ChamferType = "Two distances"
chamfer26.Size = 0.5
chamfer26.Size2 = 0.088163
chamfer26.FlipDirection = True
doc.recompute()

chamfer27 = body.newObject("PartDesign::Chamfer", "Chamfer026")
chamfer27.Base = (chamfer26, edges_at(chamfer26, [(-5.75, -2, -0.624)]))
chamfer27.ChamferType = "Two distances"
chamfer27.Size = 0.5
chamfer27.Size2 = 0.088163
chamfer27.FlipDirection = True
doc.recompute()

chamfer28 = body.newObject("PartDesign::Chamfer", "Chamfer027")
chamfer28.Base = (chamfer27, edges_at(chamfer27, [(-6, -2, -0.83)]))
chamfer28.ChamferType = "Two distances"
chamfer28.Size = 0.5
chamfer28.Size2 = 0.088163
chamfer28.FlipDirection = True
doc.recompute()

chamfer29 = body.newObject("PartDesign::Chamfer", "Chamfer028")
chamfer29.Base = (chamfer28, edges_at(chamfer28, [(-6, 5.7, -0.83)]))
chamfer29.ChamferType = "Two distances"
chamfer29.Size = 0.5
chamfer29.Size2 = 0.088163
doc.recompute()

chamfer30 = body.newObject("PartDesign::Chamfer", "Chamfer029")
chamfer30.Base = (chamfer29, edges_at(chamfer29, [(-6.25, 5.7, -0.536)]))
chamfer30.ChamferType = "Two distances"
chamfer30.Size = 0.5
chamfer30.Size2 = 0.088163
doc.recompute()

chamfer31 = body.newObject("PartDesign::Chamfer", "Chamfer030")
chamfer31.Base = (chamfer30, edges_at(chamfer30, [(-5.956, 5.7, -0.33)]))
chamfer31.ChamferType = "Two distances"
chamfer31.Size = 0.5
chamfer31.Size2 = 0.088163
doc.recompute()

chamfer32 = body.newObject("PartDesign::Chamfer", "Chamfer031")
chamfer32.Base = (chamfer31, edges_at(chamfer31, [(-5.75, 5.7, -0.58)]))
chamfer32.ChamferType = "Two distances"
chamfer32.Size = 0.5
chamfer32.Size2 = 0.088163
doc.recompute()

chamfer33 = body.newObject("PartDesign::Chamfer", "Chamfer032")
chamfer33.Base = (chamfer32, edges_at(chamfer32, [(1.75, -2, -0.58)]))
chamfer33.ChamferType = "Two distances"
chamfer33.Size = 0.5
chamfer33.Size2 = 0.088163
doc.recompute()

chamfer34 = body.newObject("PartDesign::Chamfer", "Chamfer033")
chamfer34.Base = (chamfer33, edges_at(chamfer33, [(2.044, -2, -0.33)]))
chamfer34.ChamferType = "Two distances"
chamfer34.Size = 0.5
chamfer34.Size2 = 0.088163
chamfer34.FlipDirection = True
doc.recompute()

chamfer35 = body.newObject("PartDesign::Chamfer", "Chamfer034")
chamfer35.Base = (chamfer34, edges_at(chamfer34, [(2.25, -2, -0.624)]))
chamfer35.ChamferType = "Two distances"
chamfer35.Size = 0.5
chamfer35.Size2 = 0.088163
chamfer35.FlipDirection = True
doc.recompute()

chamfer36 = body.newObject("PartDesign::Chamfer", "Chamfer035")
chamfer36.Base = (chamfer35, edges_at(chamfer35, [(2, -2, -0.83)]))
chamfer36.ChamferType = "Two distances"
chamfer36.Size = 0.5
chamfer36.Size2 = 0.088163
chamfer36.FlipDirection = True
doc.recompute()

chamfer37 = body.newObject("PartDesign::Chamfer", "Chamfer036")
chamfer37.Base = (chamfer36, edges_at(chamfer36, [(2, 5.7, -0.83)]))
chamfer37.ChamferType = "Two distances"
chamfer37.Size = 0.5
chamfer37.Size2 = 0.088163
doc.recompute()

chamfer38 = body.newObject("PartDesign::Chamfer", "Chamfer037")
chamfer38.Base = (chamfer37, edges_at(chamfer37, [(1.75, 5.7, -0.536)]))
chamfer38.ChamferType = "Two distances"
chamfer38.Size = 0.5
chamfer38.Size2 = 0.088163
doc.recompute()

chamfer39 = body.newObject("PartDesign::Chamfer", "Chamfer038")
chamfer39.Base = (chamfer38, edges_at(chamfer38, [(2.044, 5.7, -0.33)]))
chamfer39.ChamferType = "Two distances"
chamfer39.Size = 0.5
chamfer39.Size2 = 0.088163
doc.recompute()

chamfer40 = body.newObject("PartDesign::Chamfer", "Chamfer039")
chamfer40.Base = (chamfer39, edges_at(chamfer39, [(2.25, 5.7, -0.58)]))
chamfer40.ChamferType = "Two distances"
chamfer40.Size = 0.5
chamfer40.Size2 = 0.088163
doc.recompute()

chamfer41 = body.newObject("PartDesign::Chamfer", "Chamfer040")
chamfer41.Base = (chamfer40, edges_at(chamfer40, [(3.75, -2, -0.58)]))
chamfer41.ChamferType = "Two distances"
chamfer41.Size = 0.5
chamfer41.Size2 = 0.088163
doc.recompute()

chamfer42 = body.newObject("PartDesign::Chamfer", "Chamfer041")
chamfer42.Base = (chamfer41, edges_at(chamfer41, [(4.044, -2, -0.33)]))
chamfer42.ChamferType = "Two distances"
chamfer42.Size = 0.5
chamfer42.Size2 = 0.088163
chamfer42.FlipDirection = True
doc.recompute()

chamfer43 = body.newObject("PartDesign::Chamfer", "Chamfer042")
chamfer43.Base = (chamfer42, edges_at(chamfer42, [(4.25, -2, -0.624)]))
chamfer43.ChamferType = "Two distances"
chamfer43.Size = 0.5
chamfer43.Size2 = 0.088163
chamfer43.FlipDirection = True
doc.recompute()

chamfer44 = body.newObject("PartDesign::Chamfer", "Chamfer043")
chamfer44.Base = (chamfer43, edges_at(chamfer43, [(4, -2, -0.83)]))
chamfer44.ChamferType = "Two distances"
chamfer44.Size = 0.5
chamfer44.Size2 = 0.088163
chamfer44.FlipDirection = True
doc.recompute()

chamfer45 = body.newObject("PartDesign::Chamfer", "Chamfer044")
chamfer45.Base = (chamfer44, edges_at(chamfer44, [(4, 5.7, -0.83)]))
chamfer45.ChamferType = "Two distances"
chamfer45.Size = 0.5
chamfer45.Size2 = 0.088163
doc.recompute()

chamfer46 = body.newObject("PartDesign::Chamfer", "Chamfer045")
chamfer46.Base = (chamfer45, edges_at(chamfer45, [(3.75, 5.7, -0.536)]))
chamfer46.ChamferType = "Two distances"
chamfer46.Size = 0.5
chamfer46.Size2 = 0.088163
doc.recompute()

chamfer47 = body.newObject("PartDesign::Chamfer", "Chamfer046")
chamfer47.Base = (chamfer46, edges_at(chamfer46, [(4.044, 5.7, -0.33)]))
chamfer47.ChamferType = "Two distances"
chamfer47.Size = 0.5
chamfer47.Size2 = 0.088163
doc.recompute()

chamfer48 = body.newObject("PartDesign::Chamfer", "Chamfer047")
chamfer48.Base = (chamfer47, edges_at(chamfer47, [(4.25, 5.7, -0.58)]))
chamfer48.ChamferType = "Two distances"
chamfer48.Size = 0.5
chamfer48.Size2 = 0.088163

doc.recompute()
